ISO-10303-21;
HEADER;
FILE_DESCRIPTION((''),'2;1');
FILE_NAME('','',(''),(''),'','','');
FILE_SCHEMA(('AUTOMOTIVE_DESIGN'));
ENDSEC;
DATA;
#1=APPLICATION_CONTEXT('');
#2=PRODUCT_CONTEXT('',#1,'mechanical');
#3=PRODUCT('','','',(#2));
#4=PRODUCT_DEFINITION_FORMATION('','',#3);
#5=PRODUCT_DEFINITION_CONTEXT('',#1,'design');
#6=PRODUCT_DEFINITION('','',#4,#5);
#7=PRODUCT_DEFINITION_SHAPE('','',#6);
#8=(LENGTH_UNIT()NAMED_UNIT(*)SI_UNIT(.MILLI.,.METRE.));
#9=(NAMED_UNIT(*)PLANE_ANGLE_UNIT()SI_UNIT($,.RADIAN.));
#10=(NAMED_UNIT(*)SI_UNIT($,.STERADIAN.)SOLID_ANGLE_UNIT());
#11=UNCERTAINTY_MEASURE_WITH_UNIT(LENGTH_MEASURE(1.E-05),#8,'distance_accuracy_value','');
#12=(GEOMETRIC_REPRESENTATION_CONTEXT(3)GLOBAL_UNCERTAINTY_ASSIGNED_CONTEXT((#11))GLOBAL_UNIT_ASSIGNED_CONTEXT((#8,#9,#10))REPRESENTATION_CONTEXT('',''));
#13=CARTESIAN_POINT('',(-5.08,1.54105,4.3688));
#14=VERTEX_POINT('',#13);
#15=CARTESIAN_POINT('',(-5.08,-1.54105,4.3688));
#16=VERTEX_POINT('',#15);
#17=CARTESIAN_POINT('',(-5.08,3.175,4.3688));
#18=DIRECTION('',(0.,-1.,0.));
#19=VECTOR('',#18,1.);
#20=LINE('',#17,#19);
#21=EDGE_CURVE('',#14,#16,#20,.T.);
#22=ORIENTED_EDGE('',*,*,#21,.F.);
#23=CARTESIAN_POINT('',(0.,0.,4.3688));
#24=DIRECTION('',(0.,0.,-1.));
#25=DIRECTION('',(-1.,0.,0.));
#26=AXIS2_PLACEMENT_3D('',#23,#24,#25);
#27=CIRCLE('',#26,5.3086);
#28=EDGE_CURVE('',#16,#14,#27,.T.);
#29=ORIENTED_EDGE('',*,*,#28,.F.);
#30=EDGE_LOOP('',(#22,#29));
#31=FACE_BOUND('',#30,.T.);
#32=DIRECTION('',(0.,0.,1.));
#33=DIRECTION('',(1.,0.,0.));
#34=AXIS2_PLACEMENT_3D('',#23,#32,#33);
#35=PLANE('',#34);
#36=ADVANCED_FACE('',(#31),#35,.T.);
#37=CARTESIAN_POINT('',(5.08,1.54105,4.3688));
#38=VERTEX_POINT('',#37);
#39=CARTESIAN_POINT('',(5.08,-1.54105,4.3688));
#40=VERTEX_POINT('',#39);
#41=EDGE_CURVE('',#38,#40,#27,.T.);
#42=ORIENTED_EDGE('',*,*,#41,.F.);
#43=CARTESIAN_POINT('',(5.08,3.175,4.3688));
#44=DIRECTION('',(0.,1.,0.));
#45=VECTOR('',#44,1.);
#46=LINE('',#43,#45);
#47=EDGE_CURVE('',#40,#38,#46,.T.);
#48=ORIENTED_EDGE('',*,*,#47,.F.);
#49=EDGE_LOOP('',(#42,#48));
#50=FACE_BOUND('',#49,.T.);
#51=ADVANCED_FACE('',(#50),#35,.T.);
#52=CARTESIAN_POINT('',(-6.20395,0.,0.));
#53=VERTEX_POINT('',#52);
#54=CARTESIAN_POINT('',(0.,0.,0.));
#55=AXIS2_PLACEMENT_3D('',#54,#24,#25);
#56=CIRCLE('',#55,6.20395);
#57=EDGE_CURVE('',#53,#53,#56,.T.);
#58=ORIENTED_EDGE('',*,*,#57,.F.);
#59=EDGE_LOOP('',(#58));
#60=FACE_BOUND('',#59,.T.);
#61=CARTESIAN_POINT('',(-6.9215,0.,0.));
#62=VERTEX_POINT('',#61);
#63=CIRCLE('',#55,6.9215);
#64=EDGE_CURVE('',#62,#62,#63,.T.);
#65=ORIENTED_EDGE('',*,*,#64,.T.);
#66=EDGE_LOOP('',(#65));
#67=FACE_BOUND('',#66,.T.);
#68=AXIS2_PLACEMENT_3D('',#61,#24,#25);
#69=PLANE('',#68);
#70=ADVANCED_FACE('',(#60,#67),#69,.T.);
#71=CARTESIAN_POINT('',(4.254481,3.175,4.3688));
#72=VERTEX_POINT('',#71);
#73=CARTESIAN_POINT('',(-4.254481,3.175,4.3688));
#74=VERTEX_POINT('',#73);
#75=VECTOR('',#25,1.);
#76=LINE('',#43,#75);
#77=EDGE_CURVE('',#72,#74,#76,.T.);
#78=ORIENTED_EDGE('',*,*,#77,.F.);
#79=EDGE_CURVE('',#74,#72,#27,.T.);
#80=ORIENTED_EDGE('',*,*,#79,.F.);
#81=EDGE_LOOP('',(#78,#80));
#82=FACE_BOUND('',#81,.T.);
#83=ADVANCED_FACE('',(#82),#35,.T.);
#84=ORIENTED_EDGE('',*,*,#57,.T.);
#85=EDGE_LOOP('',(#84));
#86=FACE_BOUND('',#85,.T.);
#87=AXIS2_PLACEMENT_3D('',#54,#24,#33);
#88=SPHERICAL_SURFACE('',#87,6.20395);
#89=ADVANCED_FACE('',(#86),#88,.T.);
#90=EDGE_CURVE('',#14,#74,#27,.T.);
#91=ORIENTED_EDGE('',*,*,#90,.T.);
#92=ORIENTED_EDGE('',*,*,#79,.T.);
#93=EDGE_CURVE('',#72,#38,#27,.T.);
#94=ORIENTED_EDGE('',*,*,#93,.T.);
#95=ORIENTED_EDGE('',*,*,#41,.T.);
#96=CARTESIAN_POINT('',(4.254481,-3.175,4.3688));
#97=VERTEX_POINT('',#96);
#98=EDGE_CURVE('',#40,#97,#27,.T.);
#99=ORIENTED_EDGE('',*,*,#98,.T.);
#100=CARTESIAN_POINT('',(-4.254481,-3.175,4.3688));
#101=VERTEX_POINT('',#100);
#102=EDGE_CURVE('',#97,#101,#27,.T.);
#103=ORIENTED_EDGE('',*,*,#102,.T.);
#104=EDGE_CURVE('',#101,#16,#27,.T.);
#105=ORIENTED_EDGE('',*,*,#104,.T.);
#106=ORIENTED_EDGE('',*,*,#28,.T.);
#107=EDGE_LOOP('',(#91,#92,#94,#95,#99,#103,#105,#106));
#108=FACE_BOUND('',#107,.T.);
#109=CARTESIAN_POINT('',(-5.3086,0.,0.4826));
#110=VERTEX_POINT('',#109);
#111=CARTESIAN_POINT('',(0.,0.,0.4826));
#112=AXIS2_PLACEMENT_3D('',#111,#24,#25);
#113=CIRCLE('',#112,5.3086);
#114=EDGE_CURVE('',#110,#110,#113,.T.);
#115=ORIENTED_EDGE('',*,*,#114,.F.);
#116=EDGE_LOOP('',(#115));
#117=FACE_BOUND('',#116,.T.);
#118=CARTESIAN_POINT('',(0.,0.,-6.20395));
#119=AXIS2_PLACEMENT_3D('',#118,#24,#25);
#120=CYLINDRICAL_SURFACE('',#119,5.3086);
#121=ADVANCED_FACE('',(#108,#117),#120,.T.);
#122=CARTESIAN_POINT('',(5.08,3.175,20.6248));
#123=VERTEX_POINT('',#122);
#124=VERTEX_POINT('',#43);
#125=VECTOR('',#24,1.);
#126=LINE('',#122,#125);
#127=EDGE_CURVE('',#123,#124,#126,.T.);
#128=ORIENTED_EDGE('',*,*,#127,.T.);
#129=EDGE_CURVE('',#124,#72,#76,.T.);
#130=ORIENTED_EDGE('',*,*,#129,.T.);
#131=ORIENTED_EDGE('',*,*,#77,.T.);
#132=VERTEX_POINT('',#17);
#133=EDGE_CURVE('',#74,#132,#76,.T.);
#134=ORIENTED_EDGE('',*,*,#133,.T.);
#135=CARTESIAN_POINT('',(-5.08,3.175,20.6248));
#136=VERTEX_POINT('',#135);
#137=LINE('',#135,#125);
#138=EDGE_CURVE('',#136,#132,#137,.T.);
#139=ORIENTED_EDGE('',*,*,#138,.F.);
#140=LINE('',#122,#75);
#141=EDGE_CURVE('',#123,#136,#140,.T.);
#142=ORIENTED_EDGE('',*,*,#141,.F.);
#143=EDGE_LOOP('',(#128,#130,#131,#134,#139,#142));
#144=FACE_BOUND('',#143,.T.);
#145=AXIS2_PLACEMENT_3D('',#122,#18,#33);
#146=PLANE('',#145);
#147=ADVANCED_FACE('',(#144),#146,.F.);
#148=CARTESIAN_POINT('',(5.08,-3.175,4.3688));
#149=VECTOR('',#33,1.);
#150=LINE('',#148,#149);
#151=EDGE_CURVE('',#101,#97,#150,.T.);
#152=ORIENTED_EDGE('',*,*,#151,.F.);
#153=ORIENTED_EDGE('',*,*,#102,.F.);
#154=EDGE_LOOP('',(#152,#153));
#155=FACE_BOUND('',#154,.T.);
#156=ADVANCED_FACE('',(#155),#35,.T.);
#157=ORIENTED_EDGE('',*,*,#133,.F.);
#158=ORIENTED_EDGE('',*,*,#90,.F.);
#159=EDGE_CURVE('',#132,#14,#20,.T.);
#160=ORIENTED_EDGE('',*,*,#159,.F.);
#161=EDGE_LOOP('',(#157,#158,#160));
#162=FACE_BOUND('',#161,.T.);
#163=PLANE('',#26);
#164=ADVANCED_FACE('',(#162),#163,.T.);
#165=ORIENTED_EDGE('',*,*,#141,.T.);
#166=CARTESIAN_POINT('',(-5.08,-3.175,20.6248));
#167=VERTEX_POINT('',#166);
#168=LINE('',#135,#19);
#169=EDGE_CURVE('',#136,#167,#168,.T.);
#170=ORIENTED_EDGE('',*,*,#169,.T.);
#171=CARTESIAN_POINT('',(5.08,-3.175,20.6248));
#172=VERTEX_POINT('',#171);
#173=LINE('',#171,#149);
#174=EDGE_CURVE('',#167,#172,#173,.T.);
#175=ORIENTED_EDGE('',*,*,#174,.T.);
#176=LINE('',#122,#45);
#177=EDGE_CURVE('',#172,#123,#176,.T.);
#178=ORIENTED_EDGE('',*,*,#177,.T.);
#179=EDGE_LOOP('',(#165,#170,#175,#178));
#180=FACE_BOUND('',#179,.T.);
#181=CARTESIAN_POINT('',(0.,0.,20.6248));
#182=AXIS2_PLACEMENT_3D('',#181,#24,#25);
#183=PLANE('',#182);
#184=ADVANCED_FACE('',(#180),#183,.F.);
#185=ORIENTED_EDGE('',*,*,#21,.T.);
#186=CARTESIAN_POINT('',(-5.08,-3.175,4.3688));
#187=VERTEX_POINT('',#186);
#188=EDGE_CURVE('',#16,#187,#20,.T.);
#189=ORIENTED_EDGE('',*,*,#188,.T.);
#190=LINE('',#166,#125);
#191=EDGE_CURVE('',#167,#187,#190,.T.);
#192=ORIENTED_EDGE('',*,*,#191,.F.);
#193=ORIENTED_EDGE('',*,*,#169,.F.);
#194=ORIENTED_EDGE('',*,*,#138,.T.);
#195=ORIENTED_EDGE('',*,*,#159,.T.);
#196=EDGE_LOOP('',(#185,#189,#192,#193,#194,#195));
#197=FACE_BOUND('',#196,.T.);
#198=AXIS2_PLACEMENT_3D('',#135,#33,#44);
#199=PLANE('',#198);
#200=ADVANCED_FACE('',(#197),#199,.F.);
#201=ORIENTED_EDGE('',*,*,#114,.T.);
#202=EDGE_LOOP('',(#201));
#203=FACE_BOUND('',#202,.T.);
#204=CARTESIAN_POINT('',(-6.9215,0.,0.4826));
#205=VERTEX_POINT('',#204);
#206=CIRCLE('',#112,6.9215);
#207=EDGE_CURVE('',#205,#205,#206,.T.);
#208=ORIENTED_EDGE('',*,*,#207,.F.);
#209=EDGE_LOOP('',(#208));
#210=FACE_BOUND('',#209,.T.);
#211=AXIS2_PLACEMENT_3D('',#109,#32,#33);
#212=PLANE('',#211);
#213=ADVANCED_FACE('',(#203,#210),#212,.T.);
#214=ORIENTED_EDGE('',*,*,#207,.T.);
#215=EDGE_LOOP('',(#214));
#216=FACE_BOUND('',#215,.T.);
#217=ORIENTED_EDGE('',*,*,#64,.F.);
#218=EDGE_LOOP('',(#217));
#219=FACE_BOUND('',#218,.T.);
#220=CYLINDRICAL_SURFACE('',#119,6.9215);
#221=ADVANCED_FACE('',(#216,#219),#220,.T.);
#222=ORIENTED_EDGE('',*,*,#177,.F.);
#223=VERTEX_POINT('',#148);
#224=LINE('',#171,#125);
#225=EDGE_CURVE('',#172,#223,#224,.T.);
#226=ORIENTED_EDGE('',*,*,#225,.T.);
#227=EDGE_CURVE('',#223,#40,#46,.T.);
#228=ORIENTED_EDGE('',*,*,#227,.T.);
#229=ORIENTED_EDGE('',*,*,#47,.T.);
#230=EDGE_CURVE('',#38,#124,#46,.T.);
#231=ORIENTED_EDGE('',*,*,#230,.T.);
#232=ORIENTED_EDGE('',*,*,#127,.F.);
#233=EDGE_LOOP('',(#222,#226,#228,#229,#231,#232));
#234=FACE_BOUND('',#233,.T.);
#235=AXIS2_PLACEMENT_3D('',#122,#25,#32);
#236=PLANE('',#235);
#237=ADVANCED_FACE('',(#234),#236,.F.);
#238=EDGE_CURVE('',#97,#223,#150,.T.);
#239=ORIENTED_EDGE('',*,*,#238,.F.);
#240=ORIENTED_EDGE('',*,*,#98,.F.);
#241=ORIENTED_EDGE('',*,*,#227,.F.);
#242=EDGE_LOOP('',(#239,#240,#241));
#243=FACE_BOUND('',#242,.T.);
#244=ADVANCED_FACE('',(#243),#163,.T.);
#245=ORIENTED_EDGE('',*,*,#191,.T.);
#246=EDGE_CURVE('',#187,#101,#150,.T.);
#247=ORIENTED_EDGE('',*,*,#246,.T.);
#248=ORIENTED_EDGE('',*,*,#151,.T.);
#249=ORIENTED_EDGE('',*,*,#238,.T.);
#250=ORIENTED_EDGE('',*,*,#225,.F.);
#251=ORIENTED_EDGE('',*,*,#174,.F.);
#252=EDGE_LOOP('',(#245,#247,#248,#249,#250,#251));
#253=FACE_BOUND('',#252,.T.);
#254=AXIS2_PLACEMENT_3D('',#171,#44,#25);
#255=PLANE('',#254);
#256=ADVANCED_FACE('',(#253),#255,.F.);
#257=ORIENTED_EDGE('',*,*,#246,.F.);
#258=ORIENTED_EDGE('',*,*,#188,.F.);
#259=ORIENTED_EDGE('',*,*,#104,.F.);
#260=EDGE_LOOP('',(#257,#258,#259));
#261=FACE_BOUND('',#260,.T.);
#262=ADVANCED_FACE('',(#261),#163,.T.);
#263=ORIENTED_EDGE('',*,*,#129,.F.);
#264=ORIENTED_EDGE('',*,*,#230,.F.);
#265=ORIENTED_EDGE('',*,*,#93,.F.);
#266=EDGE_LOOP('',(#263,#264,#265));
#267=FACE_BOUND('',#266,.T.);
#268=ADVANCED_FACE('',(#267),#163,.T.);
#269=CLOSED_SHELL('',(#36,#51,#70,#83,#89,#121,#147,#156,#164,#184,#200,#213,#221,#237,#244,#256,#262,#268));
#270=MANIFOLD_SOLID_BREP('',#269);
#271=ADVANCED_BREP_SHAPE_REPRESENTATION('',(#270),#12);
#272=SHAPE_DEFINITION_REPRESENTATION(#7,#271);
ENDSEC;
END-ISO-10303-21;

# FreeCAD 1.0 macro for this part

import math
import FreeCAD as App
import Part
import Sketcher

V = App.Vector
Q = App.Units.Quantity

doc = App.newDocument("Part")
body = doc.addObject("PartDesign::Body", "Body")

sketch1 = body.newObject("Sketcher::SketchObject", "Sketch")
sketch1.AttachmentSupport = (doc.getObject("XZ_Plane"), [""])
sketch1.MapMode = "FlatFace"
sketch1.addGeometry([
    Part.LineSegment(V(0, 4.37, 0), V(0, -6.2, 0)),
    Part.ArcOfCircle(Part.Circle(V(0, 0, 0), V(0, 0, 1), 6.2), math.radians(180), math.radians(270)),
    Part.LineSegment(V(-6.2, 0, 0), V(-6.92, 0, 0)),
    Part.LineSegment(V(-6.92, 0, 0), V(-6.92, 0.48, 0)),
    Part.LineSegment(V(-6.92, 0.48, 0), V(-5.31, 0.48, 0)),
    Part.LineSegment(V(-5.31, 0.48, 0), V(-5.31, 4.37, 0)),
    Part.LineSegment(V(-5.31, 4.37, 0), V(0, 4.37, 0)),
], False)
sketch1.addConstraint([
    Sketcher.Constraint("Coincident", 0, 2, 1, 2),
    Sketcher.Constraint("Coincident", 1, 1, 2, 1),
    Sketcher.Constraint("Coincident", 2, 2, 3, 1),
    Sketcher.Constraint("Coincident", 3, 2, 4, 1),
    Sketcher.Constraint("Coincident", 4, 2, 5, 1),
    Sketcher.Constraint("Coincident", 5, 2, 6, 1),
    Sketcher.Constraint("Coincident", 6, 2, 0, 1),
    Sketcher.Constraint("Vertical", 0),
    Sketcher.Constraint("Horizontal", 2),
    Sketcher.Constraint("Vertical", 3),
    Sketcher.Constraint("Horizontal", 4),
    Sketcher.Constraint("Vertical", 5),
    Sketcher.Constraint("Horizontal", 6),
    Sketcher.Constraint("Coincident", 1, 3, -1, 1),
    Sketcher.Constraint("PointOnObject", 0, 2, -2),
    Sketcher.Constraint("PointOnObject", 1, 1, -1),
    Sketcher.Constraint("DistanceX", 6, 1, 6, 2, Q("0.209 in")),
    Sketcher.Constraint("DistanceY", 3, 1, 3, 2, Q("0.019 in")),
    Sketcher.Constraint("DistanceY", 5, 1, 5, 2, Q("0.153 in")),
    Sketcher.Constraint("DistanceX", 4, 1, 4, 2, Q("0.0635 in")),
    Sketcher.Constraint("Radius", 1, 6.20395),
])
revolution = body.newObject("PartDesign::Revolution", "Revolution")
revolution.Profile = sketch1
revolution.ReferenceAxis = (sketch1, ["V_Axis"])
revolution.Angle = 360

sketch2 = body.newObject("Sketcher::SketchObject", "Sketch001")
sketch2.AttachmentSupport = (doc.getObject("XY_Plane"), [""])
sketch2.MapMode = "FlatFace"
sketch2.AttachmentOffset = App.Placement(V(0, 0, 0.172 * 25.4), App.Rotation())
sketch2.addGeometry([
    Part.LineSegment(V(-5, 3, 0), V(-5, -3, 0)),
    Part.LineSegment(V(-5, -3, 0), V(5, -3, 0)),
    Part.LineSegment(V(5, -3, 0), V(5, 3, 0)),
    Part.LineSegment(V(5, 3, 0), V(-5, 3, 0)),
], False)
sketch2.addConstraint([
    Sketcher.Constraint("Coincident", 0, 2, 1, 1),
    Sketcher.Constraint("Coincident", 1, 2, 2, 1),
    Sketcher.Constraint("Coincident", 2, 2, 3, 1),
    Sketcher.Constraint("Coincident", 3, 2, 0, 1),
    Sketcher.Constraint("Vertical", 0),
    Sketcher.Constraint("Horizontal", 1),
    Sketcher.Constraint("Vertical", 2),
    Sketcher.Constraint("Horizontal", 3),
    Sketcher.Constraint("Symmetric", 0, 2, 2, 2, -1, 1),
    Sketcher.Constraint("DistanceX", 1, 1, 1, 2, Q("0.4 in")),
    Sketcher.Constraint("DistanceY", 0, 2, 0, 1, Q("0.25 in")),
])
pad1 = body.newObject("PartDesign::Pad", "Pad")
pad1.Profile = sketch2
pad1.Length = Q("0.64 in")

doc.recompute()
